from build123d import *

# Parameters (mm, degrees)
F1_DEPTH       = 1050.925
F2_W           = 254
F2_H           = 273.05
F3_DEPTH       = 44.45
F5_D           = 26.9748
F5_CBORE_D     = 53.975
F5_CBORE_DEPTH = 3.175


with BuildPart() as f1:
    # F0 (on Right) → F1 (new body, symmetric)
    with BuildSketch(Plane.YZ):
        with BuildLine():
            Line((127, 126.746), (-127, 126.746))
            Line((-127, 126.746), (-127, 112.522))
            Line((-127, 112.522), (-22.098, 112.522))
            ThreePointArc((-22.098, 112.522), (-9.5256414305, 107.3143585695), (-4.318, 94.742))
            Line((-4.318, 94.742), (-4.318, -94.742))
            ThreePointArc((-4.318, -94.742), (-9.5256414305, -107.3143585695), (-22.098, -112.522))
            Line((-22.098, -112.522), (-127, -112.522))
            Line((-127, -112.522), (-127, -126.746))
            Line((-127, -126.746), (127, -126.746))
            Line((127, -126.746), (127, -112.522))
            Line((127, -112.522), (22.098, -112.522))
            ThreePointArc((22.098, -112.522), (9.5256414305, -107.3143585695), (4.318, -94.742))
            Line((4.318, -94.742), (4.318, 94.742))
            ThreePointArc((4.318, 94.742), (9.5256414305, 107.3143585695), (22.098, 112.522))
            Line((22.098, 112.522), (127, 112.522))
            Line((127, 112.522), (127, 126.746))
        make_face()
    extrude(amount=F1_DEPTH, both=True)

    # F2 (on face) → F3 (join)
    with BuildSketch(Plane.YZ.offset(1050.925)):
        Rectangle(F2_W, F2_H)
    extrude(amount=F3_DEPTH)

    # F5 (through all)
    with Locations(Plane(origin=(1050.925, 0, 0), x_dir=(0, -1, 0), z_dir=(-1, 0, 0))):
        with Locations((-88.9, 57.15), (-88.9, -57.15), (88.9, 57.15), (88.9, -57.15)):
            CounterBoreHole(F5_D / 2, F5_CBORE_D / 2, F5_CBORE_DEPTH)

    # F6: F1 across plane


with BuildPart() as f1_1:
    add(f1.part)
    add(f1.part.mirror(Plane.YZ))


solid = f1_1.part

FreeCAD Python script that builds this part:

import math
import FreeCAD as App
import Part
import Sketcher
Q = App.Units.Quantity

doc = App.newDocument("Part")
body = doc.addObject("PartDesign::Body", "Body")

sketch1 = body.newObject("Sketcher::SketchObject", "Sketch")
sketch1.AttachmentSupport = (doc.getObject("YZ_Plane"), [""])
sketch1.MapMode = "FlatFace"
sketch1.addGeometry(Part.LineSegment(App.Vector(127, 127, 0), App.Vector(-127, 127, 0)), False)
sketch1.addGeometry(Part.LineSegment(App.Vector(-127, 127, 0), App.Vector(-127, 113, 0)), False)
sketch1.addGeometry(Part.LineSegment(App.Vector(-127, 113, 0), App.Vector(-22, 113, 0)), False)
sketch1.addGeometry(Part.ArcOfCircle(Part.Circle(App.Vector(-22, 95, 0), App.Vector(0, 0, 1), 18), math.radians(0), math.radians(90)), False)
sketch1.addGeometry(Part.LineSegment(App.Vector(-4, 95, 0), App.Vector(-4, -95, 0)), False)
sketch1.addGeometry(Part.ArcOfCircle(Part.Circle(App.Vector(-22, -95, 0), App.Vector(0, 0, 1), 18), math.radians(-90), math.radians(0)), False)
sketch1.addGeometry(Part.LineSegment(App.Vector(-22, -113, 0), App.Vector(-127, -113, 0)), False)
sketch1.addGeometry(Part.LineSegment(App.Vector(-127, -113, 0), App.Vector(-127, -127, 0)), False)
sketch1.addGeometry(Part.LineSegment(App.Vector(-127, -127, 0), App.Vector(127, -127, 0)), False)
sketch1.addGeometry(Part.LineSegment(App.Vector(127, -127, 0), App.Vector(127, -113, 0)), False)
sketch1.addGeometry(Part.LineSegment(App.Vector(127, -113, 0), App.Vector(22, -113, 0)), False)
sketch1.addGeometry(Part.ArcOfCircle(Part.Circle(App.Vector(22, -95, 0), App.Vector(0, 0, 1), 18), math.radians(180), math.radians(270)), False)
sketch1.addGeometry(Part.LineSegment(App.Vector(4, -95, 0), App.Vector(4, 95, 0)), False)
sketch1.addGeometry(Part.ArcOfCircle(Part.Circle(App.Vector(22, 95, 0), App.Vector(0, 0, 1), 18), math.radians(90), math.radians(180)), False)
sketch1.addGeometry(Part.LineSegment(App.Vector(22, 113, 0), App.Vector(127, 113, 0)), False)
sketch1.addGeometry(Part.LineSegment(App.Vector(127, 113, 0), App.Vector(127, 127, 0)), False)
sketch1.addConstraint(Sketcher.Constraint("Coincident", 0, 2, 1, 1))
sketch1.addConstraint(Sketcher.Constraint("Coincident", 1, 2, 2, 1))
sketch1.addConstraint(Sketcher.Constraint("Tangent", 2, 2, 3, 2))
sketch1.addConstraint(Sketcher.Constraint("Tangent", 3, 1, 4, 1))
sketch1.addConstraint(Sketcher.Constraint("Tangent", 4, 2, 5, 2))
sketch1.addConstraint(Sketcher.Constraint("Tangent", 5, 1, 6, 1))
sketch1.addConstraint(Sketcher.Constraint("Coincident", 6, 2, 7, 1))
sketch1.addConstraint(Sketcher.Constraint("Coincident", 7, 2, 8, 1))
sketch1.addConstraint(Sketcher.Constraint("Coincident", 8, 2, 9, 1))
sketch1.addConstraint(Sketcher.Constraint("Coincident", 9, 2, 10, 1))
sketch1.addConstraint(Sketcher.Constraint("Tangent", 10, 2, 11, 2))
sketch1.addConstraint(Sketcher.Constraint("Tangent", 11, 1, 12, 1))
sketch1.addConstraint(Sketcher.Constraint("Tangent", 12, 2, 13, 2))
sketch1.addConstraint(Sketcher.Constraint("Tangent", 13, 1, 14, 1))
sketch1.addConstraint(Sketcher.Constraint("Coincident", 14, 2, 15, 1))
sketch1.addConstraint(Sketcher.Constraint("Coincident", 15, 2, 0, 1))
sketch1.addConstraint(Sketcher.Constraint("Horizontal", 0))
sketch1.addConstraint(Sketcher.Constraint("Vertical", 1))
sketch1.addConstraint(Sketcher.Constraint("Horizontal", 2))
sketch1.addConstraint(Sketcher.Constraint("Vertical", 4))
sketch1.addConstraint(Sketcher.Constraint("Horizontal", 6))
sketch1.addConstraint(Sketcher.Constraint("Vertical", 7))
sketch1.addConstraint(Sketcher.Constraint("Horizontal", 8))
sketch1.addConstraint(Sketcher.Constraint("Vertical", 9))
sketch1.addConstraint(Sketcher.Constraint("Horizontal", 10))
sketch1.addConstraint(Sketcher.Constraint("Vertical", 12))
sketch1.addConstraint(Sketcher.Constraint("Horizontal", 14))
sketch1.addConstraint(Sketcher.Constraint("Vertical", 15))
sketch1.addConstraint(Sketcher.Constraint("Equal", 3, 5))
sketch1.addConstraint(Sketcher.Constraint("Equal", 5, 11))
sketch1.addConstraint(Sketcher.Constraint("Equal", 11, 13))
sketch1.addConstraint(Sketcher.Constraint("Symmetric", 3, 3, 11, 3, -1, 1))
sketch1.addConstraint(Sketcher.Constraint("Symmetric", 0, 2, 8, 2, -1, 1))
sketch1.addConstraint(Sketcher.Constraint("Symmetric", 6, 2, 14, 2, -1, 1))
sketch1.addConstraint(Sketcher.Constraint("Symmetric", 6, 2, 9, 2, -2))
sketch1.addConstraint(Sketcher.Constraint("Radius", 3, Q("0.7 in")))
sketch1.addConstraint(Sketcher.Constraint("DistanceX", 0, 2, 0, 1, Q("10 in")))
sketch1.addConstraint(Sketcher.Constraint("DistanceX", 2, 1, 2, 2, Q("4.13 in")))
sketch1.addConstraint(Sketcher.Constraint("DistanceY", 1, 2, 1, 1, Q("0.56 in")))
sketch1.addConstraint(Sketcher.Constraint("DistanceY", 4, 2, 4, 1, Q("7.46 in")))
pad1 = body.newObject("PartDesign::Pad", "Pad")
pad1.Profile = sketch1
pad1.Length = Q("82.75 in")
pad1.Midplane = True

sketch2 = body.newObject("Sketcher::SketchObject", "Sketch001")
sketch2.AttachmentSupport = (doc.getObject("YZ_Plane"), [""])
sketch2.MapMode = "FlatFace"
sketch2.AttachmentOffset = App.Placement(App.Vector(0, 0, 41.375 * 25.4), App.Rotation())
sketch2.addGeometry(Part.LineSegment(App.Vector(-127, 137, 0), App.Vector(-127, -137, 0)), False)
sketch2.addGeometry(Part.LineSegment(App.Vector(-127, -137, 0), App.Vector(127, -137, 0)), False)
sketch2.addGeometry(Part.LineSegment(App.Vector(127, -137, 0), App.Vector(127, 137, 0)), False)
sketch2.addGeometry(Part.LineSegment(App.Vector(127, 137, 0), App.Vector(-127, 137, 0)), False)
sketch2.addConstraint(Sketcher.Constraint("Coincident", 0, 2, 1, 1))
sketch2.addConstraint(Sketcher.Constraint("Coincident", 1, 2, 2, 1))
sketch2.addConstraint(Sketcher.Constraint("Coincident", 2, 2, 3, 1))
sketch2.addConstraint(Sketcher.Constraint("Coincident", 3, 2, 0, 1))
sketch2.addConstraint(Sketcher.Constraint("Vertical", 0))
sketch2.addConstraint(Sketcher.Constraint("Horizontal", 1))
sketch2.addConstraint(Sketcher.Constraint("Vertical", 2))
sketch2.addConstraint(Sketcher.Constraint("Horizontal", 3))
sketch2.addConstraint(Sketcher.Constraint("Symmetric", 0, 2, 2, 2, -1, 1))
sketch2.addConstraint(Sketcher.Constraint("DistanceX", 1, 1, 1, 2, Q("10 in")))
sketch2.addConstraint(Sketcher.Constraint("DistanceY", 0, 2, 0, 1, Q("10.75 in")))
pad2 = body.newObject("PartDesign::Pad", "Pad001")
pad2.Profile = sketch2
pad2.Length = Q("1.75 in")

sketch3 = body.newObject("Sketcher::SketchObject", "Sketch002")
sketch3.AttachmentSupport = (doc.getObject("YZ_Plane"), [""])
sketch3.MapMode = "FlatFace"
sketch3.AttachmentOffset = App.Placement(App.Vector(0, 0, 41.375 * 25.4), App.Rotation())
sketch3.addGeometry(Part.Circle(App.Vector(89, 57, 0), App.Vector(0, 0, 1), 13), False)
sketch3.addGeometry(Part.Circle(App.Vector(89, -57, 0), App.Vector(0, 0, 1), 13), False)
sketch3.addGeometry(Part.Circle(App.Vector(-89, 57, 0), App.Vector(0, 0, 1), 13), False)
sketch3.addGeometry(Part.Circle(App.Vector(-89, -57, 0), App.Vector(0, 0, 1), 13), False)
sketch3.addConstraint(Sketcher.Constraint("Equal", 0, 1))
sketch3.addConstraint(Sketcher.Constraint("Equal", 1, 2))
sketch3.addConstraint(Sketcher.Constraint("Equal", 2, 3))
sketch3.addConstraint(Sketcher.Constraint("Symmetric", 1, 3, 2, 3, -1, 1))
sketch3.addConstraint(Sketcher.Constraint("Symmetric", 0, 3, 3, 3, -1, 1))
sketch3.addConstraint(Sketcher.Constraint("Symmetric", 0, 3, 2, 3, -2))
sketch3.addConstraint(Sketcher.Constraint("Diameter", 0, Q("1.062 in")))
sketch3.addConstraint(Sketcher.Constraint("DistanceX", 2, 3, 0, 3, Q("7 in")))
sketch3.addConstraint(Sketcher.Constraint("DistanceY", 1, 3, 0, 3, Q("4.5 in")))
doc.recompute()
hole = body.newObject("PartDesign::Hole", "Hole")
hole.Profile = sketch3
hole.ThreadType = "None"
hole.Diameter = Q("1.062 in")
hole.DepthType = "ThroughAll"
hole.HoleCutType = "Counterbore"
hole.HoleCutDiameter = Q("2.125 in")
hole.HoleCutDepth = Q("0.125 in")
hole.Reversed = True
body2 = doc.addObject("PartDesign::Body", "Body001")
doc.recompute()

body2.BaseFeature = body
doc.recompute()

mirroring = doc.addObject("Part::Mirroring", "Mirroring")
mirroring.Source = body
mirroring.Base = App.Vector(0, 0, 0)
mirroring.Normal = App.Vector(1, 0, 0)
body3 = doc.addObject("PartDesign::Body", "Body002")
body3.BaseFeature = mirroring
boolean = body2.newObject("PartDesign::Boolean", "Boolean")
boolean.Type = "Fuse"
boolean.addObjects([body3])
doc.recompute()
mirroring.Visibility = False

doc.recompute()
